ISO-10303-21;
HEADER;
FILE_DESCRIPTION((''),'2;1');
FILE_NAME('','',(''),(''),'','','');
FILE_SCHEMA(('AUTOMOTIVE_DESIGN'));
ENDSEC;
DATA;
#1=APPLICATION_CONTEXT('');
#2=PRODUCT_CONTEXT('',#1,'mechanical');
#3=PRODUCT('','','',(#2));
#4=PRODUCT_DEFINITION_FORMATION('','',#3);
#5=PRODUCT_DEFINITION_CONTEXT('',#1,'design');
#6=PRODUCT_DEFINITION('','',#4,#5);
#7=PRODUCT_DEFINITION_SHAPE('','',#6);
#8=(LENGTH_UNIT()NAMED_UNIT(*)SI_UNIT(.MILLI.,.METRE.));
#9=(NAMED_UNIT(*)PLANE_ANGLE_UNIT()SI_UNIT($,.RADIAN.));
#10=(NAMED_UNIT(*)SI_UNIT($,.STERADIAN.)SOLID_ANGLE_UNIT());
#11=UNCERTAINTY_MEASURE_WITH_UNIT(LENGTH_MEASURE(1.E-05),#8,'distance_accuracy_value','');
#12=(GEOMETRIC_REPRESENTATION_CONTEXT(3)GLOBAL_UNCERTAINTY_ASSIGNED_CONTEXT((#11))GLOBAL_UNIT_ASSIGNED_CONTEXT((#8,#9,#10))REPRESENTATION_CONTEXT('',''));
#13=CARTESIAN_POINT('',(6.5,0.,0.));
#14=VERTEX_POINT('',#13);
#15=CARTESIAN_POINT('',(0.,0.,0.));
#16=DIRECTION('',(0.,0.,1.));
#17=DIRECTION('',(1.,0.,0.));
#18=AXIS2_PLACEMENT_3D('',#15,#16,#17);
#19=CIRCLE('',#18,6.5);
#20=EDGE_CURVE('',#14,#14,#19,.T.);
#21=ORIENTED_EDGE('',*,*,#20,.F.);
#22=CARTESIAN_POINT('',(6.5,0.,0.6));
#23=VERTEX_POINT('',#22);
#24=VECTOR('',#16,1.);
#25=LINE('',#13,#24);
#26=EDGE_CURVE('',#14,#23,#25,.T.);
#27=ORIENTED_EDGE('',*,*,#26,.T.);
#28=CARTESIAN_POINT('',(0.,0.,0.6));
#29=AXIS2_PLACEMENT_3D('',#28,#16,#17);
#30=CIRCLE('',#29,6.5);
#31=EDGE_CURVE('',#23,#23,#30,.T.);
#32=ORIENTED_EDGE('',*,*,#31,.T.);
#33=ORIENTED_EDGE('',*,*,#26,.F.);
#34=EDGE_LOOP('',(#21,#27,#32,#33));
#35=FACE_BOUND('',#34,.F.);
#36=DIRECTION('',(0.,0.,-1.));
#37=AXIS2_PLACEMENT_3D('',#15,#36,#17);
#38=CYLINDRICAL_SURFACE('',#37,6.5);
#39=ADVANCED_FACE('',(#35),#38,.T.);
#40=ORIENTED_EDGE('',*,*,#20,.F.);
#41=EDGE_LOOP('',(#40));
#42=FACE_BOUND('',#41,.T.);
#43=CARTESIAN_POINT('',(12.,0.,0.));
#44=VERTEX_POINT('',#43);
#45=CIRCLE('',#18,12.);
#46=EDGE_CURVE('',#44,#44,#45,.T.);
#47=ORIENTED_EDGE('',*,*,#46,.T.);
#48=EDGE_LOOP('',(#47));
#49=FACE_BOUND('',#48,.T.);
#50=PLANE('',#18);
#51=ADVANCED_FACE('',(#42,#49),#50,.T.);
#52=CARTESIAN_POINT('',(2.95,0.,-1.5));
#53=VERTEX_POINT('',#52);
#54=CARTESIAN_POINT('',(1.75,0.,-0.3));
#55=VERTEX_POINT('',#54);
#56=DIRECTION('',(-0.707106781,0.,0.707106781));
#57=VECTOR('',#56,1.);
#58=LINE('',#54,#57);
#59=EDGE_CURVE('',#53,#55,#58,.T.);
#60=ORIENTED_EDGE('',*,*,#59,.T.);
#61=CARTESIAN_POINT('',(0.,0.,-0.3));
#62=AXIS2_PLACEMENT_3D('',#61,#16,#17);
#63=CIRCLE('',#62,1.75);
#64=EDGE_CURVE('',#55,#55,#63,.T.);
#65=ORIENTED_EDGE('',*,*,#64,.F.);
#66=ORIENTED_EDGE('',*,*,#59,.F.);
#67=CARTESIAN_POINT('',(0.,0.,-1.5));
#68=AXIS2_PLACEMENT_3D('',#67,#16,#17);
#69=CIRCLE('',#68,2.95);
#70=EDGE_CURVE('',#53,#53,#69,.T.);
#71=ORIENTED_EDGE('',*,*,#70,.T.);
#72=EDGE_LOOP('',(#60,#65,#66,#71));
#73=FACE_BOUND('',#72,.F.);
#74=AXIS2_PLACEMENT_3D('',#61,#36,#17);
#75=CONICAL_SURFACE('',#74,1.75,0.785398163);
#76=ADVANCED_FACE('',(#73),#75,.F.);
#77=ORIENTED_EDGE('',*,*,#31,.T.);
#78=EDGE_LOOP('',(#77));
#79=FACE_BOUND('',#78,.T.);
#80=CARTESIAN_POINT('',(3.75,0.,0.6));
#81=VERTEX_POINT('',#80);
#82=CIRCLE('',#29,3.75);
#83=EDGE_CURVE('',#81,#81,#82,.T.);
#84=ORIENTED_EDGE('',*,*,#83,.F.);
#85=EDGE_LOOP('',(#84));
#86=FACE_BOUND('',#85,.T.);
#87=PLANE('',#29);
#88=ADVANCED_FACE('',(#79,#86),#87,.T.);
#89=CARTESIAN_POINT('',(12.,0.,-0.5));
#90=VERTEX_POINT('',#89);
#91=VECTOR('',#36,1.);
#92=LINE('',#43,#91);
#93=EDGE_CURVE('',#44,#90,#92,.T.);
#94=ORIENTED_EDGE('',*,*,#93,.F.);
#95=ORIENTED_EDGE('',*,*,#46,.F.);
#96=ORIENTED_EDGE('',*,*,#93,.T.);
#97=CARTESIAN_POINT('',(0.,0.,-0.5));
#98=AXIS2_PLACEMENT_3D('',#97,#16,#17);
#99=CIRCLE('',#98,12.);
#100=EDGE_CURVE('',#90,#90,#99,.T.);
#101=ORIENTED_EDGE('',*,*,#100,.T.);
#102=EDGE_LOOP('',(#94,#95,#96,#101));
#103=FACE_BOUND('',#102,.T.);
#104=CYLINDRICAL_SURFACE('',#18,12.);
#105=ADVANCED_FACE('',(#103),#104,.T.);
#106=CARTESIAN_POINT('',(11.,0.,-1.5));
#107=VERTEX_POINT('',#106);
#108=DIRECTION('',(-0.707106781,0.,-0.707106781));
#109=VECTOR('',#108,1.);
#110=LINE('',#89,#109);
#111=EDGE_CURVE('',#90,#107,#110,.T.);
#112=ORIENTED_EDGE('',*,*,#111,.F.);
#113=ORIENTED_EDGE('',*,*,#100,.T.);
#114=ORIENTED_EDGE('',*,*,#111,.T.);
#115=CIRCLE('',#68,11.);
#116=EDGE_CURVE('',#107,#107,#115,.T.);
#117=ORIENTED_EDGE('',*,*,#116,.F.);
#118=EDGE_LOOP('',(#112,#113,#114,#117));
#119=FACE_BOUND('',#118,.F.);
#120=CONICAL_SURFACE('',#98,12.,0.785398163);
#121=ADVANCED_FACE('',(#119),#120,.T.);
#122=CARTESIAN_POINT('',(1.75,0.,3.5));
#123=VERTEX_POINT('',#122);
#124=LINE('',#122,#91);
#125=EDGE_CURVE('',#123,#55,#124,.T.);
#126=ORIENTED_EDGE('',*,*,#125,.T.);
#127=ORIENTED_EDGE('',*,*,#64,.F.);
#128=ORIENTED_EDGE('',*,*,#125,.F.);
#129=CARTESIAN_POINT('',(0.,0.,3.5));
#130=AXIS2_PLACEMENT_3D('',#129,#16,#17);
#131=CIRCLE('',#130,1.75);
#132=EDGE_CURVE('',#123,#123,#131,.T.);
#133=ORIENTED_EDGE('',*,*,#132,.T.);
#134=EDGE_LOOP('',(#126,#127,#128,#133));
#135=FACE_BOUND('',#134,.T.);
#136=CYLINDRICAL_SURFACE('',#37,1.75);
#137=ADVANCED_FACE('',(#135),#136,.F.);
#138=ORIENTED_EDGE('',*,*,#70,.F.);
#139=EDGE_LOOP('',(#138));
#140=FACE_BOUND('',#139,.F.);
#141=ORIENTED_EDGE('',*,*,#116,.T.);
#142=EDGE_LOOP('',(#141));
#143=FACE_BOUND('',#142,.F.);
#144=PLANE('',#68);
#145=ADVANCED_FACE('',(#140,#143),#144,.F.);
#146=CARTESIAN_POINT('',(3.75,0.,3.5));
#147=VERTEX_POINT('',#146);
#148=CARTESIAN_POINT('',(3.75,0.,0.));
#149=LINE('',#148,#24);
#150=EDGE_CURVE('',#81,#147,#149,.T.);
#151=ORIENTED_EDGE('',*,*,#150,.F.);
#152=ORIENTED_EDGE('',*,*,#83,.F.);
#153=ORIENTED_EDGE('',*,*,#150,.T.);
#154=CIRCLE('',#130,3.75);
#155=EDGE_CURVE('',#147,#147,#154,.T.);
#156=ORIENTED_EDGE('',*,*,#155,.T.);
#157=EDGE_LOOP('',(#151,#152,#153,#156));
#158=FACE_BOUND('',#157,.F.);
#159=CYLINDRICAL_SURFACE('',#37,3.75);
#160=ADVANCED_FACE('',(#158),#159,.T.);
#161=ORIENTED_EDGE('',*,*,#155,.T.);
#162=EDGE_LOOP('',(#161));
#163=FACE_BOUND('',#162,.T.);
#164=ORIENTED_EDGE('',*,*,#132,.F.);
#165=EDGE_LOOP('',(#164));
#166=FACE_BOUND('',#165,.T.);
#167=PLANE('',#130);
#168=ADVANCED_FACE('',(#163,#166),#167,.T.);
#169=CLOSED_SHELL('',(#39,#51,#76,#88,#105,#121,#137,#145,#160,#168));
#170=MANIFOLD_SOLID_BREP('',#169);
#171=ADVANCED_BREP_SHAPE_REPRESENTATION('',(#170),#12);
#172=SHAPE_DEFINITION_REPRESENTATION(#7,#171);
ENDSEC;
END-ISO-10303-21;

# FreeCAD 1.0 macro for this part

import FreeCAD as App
import Part
import Sketcher

V = App.Vector
Q = App.Units.Quantity


def edges_at(feature, points):
    """Names of the edges that pass closest to the given points."""
    edges = feature.Shape.Edges
    near = lambda p: min(range(len(edges)), key=lambda i: edges[i].distToShape(Part.Vertex(*p))[0])
    return sorted({f"Edge{near(p) + 1}" for p in points})

doc = App.newDocument("Part")
body = doc.addObject("PartDesign::Body", "Body")

# Sketch on XY plane
sketch1 = body.newObject("Sketcher::SketchObject", "Sketch")
sketch1.AttachmentSupport = (doc.getObject("XY_Plane"), [""])
sketch1.MapMode = "FlatFace"
sketch1.addGeometry(Part.Circle(V(0, 0, 0), V(0, 0, 1), 12), False)
sketch1.addGeometry(Part.Circle(V(0, 0, 0), V(0, 0, 1), 1.8), False)
sketch1.addConstraint(Sketcher.Constraint("Coincident", 0, 3, -1, 1))
sketch1.addConstraint(Sketcher.Constraint("Coincident", 1, 3, -1, 1))
sketch1.addConstraint(Sketcher.Constraint("Diameter", 0, Q("24 mm")))
sketch1.addConstraint(Sketcher.Constraint("Diameter", 1, Q("3.5 mm")))
pad1 = body.newObject("PartDesign::Pad", "Pad")
pad1.Profile = sketch1
pad1.Length = 1.5
pad1.Reversed = True

# Sketch on XY plane
sketch2 = body.newObject("Sketcher::SketchObject", "Sketch001")
sketch2.AttachmentSupport = (doc.getObject("XY_Plane"), [""])
sketch2.MapMode = "FlatFace"
sketch2.addGeometry(Part.Circle(V(0, 0, 0), V(0, 0, 1), 3.8), False)
sketch2.addGeometry(Part.Circle(V(0, 0, 0), V(0, 0, 1), 1.8), False)
sketch2.addConstraint(Sketcher.Constraint("Coincident", 0, 3, -1, 1))
sketch2.addConstraint(Sketcher.Constraint("Coincident", 1, 3, -1, 1))
sketch2.addConstraint(Sketcher.Constraint("Diameter", 0, Q("7.5 mm")))
sketch2.addConstraint(Sketcher.Constraint("Diameter", 1, Q("3.5 mm")))
pad2 = body.newObject("PartDesign::Pad", "Pad001")
pad2.Profile = sketch2
pad2.Length = 3.5

# Sketch on XY plane
sketch3 = body.newObject("Sketcher::SketchObject", "Sketch002")
sketch3.AttachmentSupport = (doc.getObject("XY_Plane"), [""])
sketch3.MapMode = "FlatFace"
sketch3.addGeometry(Part.Circle(V(0, 0, 0), V(0, 0, 1), 6.5), False)
sketch3.addGeometry(Part.Circle(V(0, 0, 0), V(0, 0, 1), 3.8), False)
sketch3.addConstraint(Sketcher.Constraint("Coincident", 0, 3, -1, 1))
sketch3.addConstraint(Sketcher.Constraint("Coincident", 1, 3, -1, 1))
sketch3.addConstraint(Sketcher.Constraint("Diameter", 0, Q("13 mm")))
sketch3.addConstraint(Sketcher.Constraint("Diameter", 1, Q("7.5 mm")))
pad3 = body.newObject("PartDesign::Pad", "Pad002")
pad3.Profile = sketch3
pad3.Length = 0.6
doc.recompute()

chamfer = body.newObject("PartDesign::Chamfer", "Chamfer")
chamfer.Base = (pad3, edges_at(pad3, [(-12, 0, -1.5)]))
chamfer.Size = 1
doc.recompute()

chamfer2 = body.newObject("PartDesign::Chamfer", "Chamfer001")
chamfer2.Base = (chamfer, edges_at(chamfer, [(-1.75, 0, -1.5)]))
chamfer2.Size = 1.2

doc.recompute()
